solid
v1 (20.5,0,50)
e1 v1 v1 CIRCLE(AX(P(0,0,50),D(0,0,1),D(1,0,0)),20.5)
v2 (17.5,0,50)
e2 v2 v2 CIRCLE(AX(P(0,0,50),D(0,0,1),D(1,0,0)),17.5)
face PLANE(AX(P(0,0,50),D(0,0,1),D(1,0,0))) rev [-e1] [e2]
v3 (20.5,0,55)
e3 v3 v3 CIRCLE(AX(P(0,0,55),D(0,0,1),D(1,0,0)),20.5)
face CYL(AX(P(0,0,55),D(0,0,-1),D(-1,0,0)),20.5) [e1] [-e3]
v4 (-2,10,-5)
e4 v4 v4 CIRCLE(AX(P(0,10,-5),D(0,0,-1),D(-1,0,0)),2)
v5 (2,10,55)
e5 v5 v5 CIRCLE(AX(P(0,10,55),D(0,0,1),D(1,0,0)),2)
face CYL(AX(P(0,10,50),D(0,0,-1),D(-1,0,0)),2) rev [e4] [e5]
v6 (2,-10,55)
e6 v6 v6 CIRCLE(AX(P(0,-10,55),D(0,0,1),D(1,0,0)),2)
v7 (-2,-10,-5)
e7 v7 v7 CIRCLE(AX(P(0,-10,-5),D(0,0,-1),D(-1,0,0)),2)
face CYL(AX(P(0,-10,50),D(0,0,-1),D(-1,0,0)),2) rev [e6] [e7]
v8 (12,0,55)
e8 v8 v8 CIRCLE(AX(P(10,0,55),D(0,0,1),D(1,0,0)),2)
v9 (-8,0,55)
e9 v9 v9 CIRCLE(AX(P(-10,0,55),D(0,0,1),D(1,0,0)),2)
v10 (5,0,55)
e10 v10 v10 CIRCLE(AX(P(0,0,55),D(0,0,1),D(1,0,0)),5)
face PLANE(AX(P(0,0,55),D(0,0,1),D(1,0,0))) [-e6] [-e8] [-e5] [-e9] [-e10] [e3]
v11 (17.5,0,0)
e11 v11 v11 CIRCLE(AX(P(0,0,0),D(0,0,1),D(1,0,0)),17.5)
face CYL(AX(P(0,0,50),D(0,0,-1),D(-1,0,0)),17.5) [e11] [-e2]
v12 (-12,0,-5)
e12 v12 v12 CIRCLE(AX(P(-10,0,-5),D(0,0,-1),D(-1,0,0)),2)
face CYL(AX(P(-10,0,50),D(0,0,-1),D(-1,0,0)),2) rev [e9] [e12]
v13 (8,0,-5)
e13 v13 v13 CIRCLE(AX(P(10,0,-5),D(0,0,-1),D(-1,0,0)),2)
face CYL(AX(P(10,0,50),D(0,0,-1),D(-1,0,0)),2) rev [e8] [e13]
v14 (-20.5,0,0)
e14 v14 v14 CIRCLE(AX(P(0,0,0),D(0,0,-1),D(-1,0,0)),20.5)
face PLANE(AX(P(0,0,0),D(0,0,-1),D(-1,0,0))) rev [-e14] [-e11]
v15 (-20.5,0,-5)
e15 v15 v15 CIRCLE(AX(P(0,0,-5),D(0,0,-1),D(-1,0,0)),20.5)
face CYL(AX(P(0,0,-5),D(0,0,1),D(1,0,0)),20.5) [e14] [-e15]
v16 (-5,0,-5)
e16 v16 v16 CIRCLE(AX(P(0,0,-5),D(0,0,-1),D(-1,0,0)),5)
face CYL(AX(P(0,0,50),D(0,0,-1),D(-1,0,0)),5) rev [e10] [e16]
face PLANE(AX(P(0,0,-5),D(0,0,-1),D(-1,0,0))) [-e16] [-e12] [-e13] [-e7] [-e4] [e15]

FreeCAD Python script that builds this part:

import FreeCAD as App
import Part
import Sketcher

doc = App.newDocument("Part")
body = doc.addObject("PartDesign::Body", "Body")

sketch1 = doc.addObject("Sketcher::SketchObject", "Sketch")
body.addObject(sketch1)
sketch1.AttachmentSupport = (doc.XY_Plane, [""])
sketch1.MapMode = "FlatFace"
sketch1.addGeometry([
    Part.Circle(App.Vector(0, 0, 0), App.Vector(0, 0, 1), 17.5),
    Part.Circle(App.Vector(0, -10, 0), App.Vector(0, 0, 1), 2),
    Part.Circle(App.Vector(-10, 0, 0), App.Vector(0, 0, 1), 2),
    Part.Circle(App.Vector(0, 0, 0), App.Vector(0, 0, 1), 5),
    Part.Circle(App.Vector(10, 0, 0), App.Vector(0, 0, 1), 2),
    Part.Circle(App.Vector(0, 10, 0), App.Vector(0, 0, 1), 2),
], False)
sketch1.addConstraint([
    Sketcher.Constraint("Coincident", 0, 3, -1, 1),
    Sketcher.Constraint("Coincident", 3, 3, -1, 1),
    Sketcher.Constraint("Equal", 1, 2),
    Sketcher.Constraint("Equal", 2, 4),
    Sketcher.Constraint("Equal", 4, 5),
    Sketcher.Constraint("Symmetric", 2, 3, 4, 3, -1, 1),
    Sketcher.Constraint("Symmetric", 1, 3, 5, 3, -1, 1),
    Sketcher.Constraint("PointOnObject", 1, 3, -2),
    Sketcher.Constraint("PointOnObject", 2, 3, -1),
    Sketcher.Constraint("Diameter", 0, 35.0),
    Sketcher.Constraint("Diameter", 1, 4.0),
    Sketcher.Constraint("Diameter", 3, 10.0),
    Sketcher.Constraint("DistanceY", 1, 3, -1, 1, 10.0),
    Sketcher.Constraint("DistanceX", 2, 3, -1, 1, 10.0),
])
pad1 = doc.addObject("PartDesign::Pad", "Pad")
body.addObject(pad1)
pad1.Profile = sketch1
pad1.Length = 50

sketch2 = doc.addObject("Sketcher::SketchObject", "Sketch001")
body.addObject(sketch2)
sketch2.AttachmentSupport = (doc.XY_Plane, [""])
sketch2.MapMode = "FlatFace"
sketch2.AttachmentOffset = App.Placement(App.Vector(0, 0, 50), App.Rotation())
sketch2.addGeometry([
    Part.Circle(App.Vector(0, 0, 0), App.Vector(0, 0, 1), 20.5),
    Part.Circle(App.Vector(0, -10, 0), App.Vector(0, 0, 1), 2),
    Part.Circle(App.Vector(-10, 0, 0), App.Vector(0, 0, 1), 2),
    Part.Circle(App.Vector(0, 0, 0), App.Vector(0, 0, 1), 5),
    Part.Circle(App.Vector(10, 0, 0), App.Vector(0, 0, 1), 2),
    Part.Circle(App.Vector(0, 10, 0), App.Vector(0, 0, 1), 2),
], False)
sketch2.addConstraint([
    Sketcher.Constraint("Coincident", 0, 3, -1, 1),
    Sketcher.Constraint("Coincident", 3, 3, -1, 1),
    Sketcher.Constraint("Equal", 1, 2),
    Sketcher.Constraint("Equal", 2, 4),
    Sketcher.Constraint("Equal", 4, 5),
    Sketcher.Constraint("Symmetric", 2, 3, 4, 3, -1, 1),
    Sketcher.Constraint("Symmetric", 1, 3, 5, 3, -1, 1),
    Sketcher.Constraint("PointOnObject", 1, 3, -2),
    Sketcher.Constraint("PointOnObject", 2, 3, -1),
    Sketcher.Constraint("Diameter", 0, 41.0),
    Sketcher.Constraint("Diameter", 1, 4.0),
    Sketcher.Constraint("Diameter", 3, 10.0),
    Sketcher.Constraint("DistanceY", 1, 3, -1, 1, 10.0),
    Sketcher.Constraint("DistanceX", 2, 3, -1, 1, 10.0),
])
pad2 = doc.addObject("PartDesign::Pad", "Pad001")
body.addObject(pad2)
pad2.Profile = sketch2
pad2.Length = 5

sketch3 = doc.addObject("Sketcher::SketchObject", "Sketch002")
body.addObject(sketch3)
sketch3.AttachmentSupport = (doc.XY_Plane, [""])
sketch3.MapMode = "FlatFace"
sketch3.addGeometry([
    Part.Circle(App.Vector(0, 0, 0), App.Vector(0, 0, 1), 20.5),
    Part.Circle(App.Vector(0, -10, 0), App.Vector(0, 0, 1), 2),
    Part.Circle(App.Vector(10, 0, 0), App.Vector(0, 0, 1), 2),
    Part.Circle(App.Vector(0, 0, 0), App.Vector(0, 0, 1), 5),
    Part.Circle(App.Vector(-10, 0, 0), App.Vector(0, 0, 1), 2),
    Part.Circle(App.Vector(0, 10, 0), App.Vector(0, 0, 1), 2),
], False)
sketch3.addConstraint([
    Sketcher.Constraint("Coincident", 0, 3, -1, 1),
    Sketcher.Constraint("Coincident", 3, 3, -1, 1),
    Sketcher.Constraint("Equal", 1, 2),
    Sketcher.Constraint("Equal", 2, 4),
    Sketcher.Constraint("Equal", 4, 5),
    Sketcher.Constraint("Symmetric", 2, 3, 4, 3, -1, 1),
    Sketcher.Constraint("Symmetric", 1, 3, 5, 3, -1, 1),
    Sketcher.Constraint("PointOnObject", 1, 3, -2),
    Sketcher.Constraint("PointOnObject", 2, 3, -1),
    Sketcher.Constraint("Diameter", 0, 41.0),
    Sketcher.Constraint("Diameter", 1, 4.0),
    Sketcher.Constraint("Diameter", 3, 10.0),
    Sketcher.Constraint("DistanceY", 1, 3, -1, 1, 10.0),
    Sketcher.Constraint("DistanceX", -1, 1, 2, 3, 10.0),
])
pad3 = doc.addObject("PartDesign::Pad", "Pad002")
body.addObject(pad3)
pad3.Profile = sketch3
pad3.Length = 5
pad3.Reversed = True

doc.recompute()
